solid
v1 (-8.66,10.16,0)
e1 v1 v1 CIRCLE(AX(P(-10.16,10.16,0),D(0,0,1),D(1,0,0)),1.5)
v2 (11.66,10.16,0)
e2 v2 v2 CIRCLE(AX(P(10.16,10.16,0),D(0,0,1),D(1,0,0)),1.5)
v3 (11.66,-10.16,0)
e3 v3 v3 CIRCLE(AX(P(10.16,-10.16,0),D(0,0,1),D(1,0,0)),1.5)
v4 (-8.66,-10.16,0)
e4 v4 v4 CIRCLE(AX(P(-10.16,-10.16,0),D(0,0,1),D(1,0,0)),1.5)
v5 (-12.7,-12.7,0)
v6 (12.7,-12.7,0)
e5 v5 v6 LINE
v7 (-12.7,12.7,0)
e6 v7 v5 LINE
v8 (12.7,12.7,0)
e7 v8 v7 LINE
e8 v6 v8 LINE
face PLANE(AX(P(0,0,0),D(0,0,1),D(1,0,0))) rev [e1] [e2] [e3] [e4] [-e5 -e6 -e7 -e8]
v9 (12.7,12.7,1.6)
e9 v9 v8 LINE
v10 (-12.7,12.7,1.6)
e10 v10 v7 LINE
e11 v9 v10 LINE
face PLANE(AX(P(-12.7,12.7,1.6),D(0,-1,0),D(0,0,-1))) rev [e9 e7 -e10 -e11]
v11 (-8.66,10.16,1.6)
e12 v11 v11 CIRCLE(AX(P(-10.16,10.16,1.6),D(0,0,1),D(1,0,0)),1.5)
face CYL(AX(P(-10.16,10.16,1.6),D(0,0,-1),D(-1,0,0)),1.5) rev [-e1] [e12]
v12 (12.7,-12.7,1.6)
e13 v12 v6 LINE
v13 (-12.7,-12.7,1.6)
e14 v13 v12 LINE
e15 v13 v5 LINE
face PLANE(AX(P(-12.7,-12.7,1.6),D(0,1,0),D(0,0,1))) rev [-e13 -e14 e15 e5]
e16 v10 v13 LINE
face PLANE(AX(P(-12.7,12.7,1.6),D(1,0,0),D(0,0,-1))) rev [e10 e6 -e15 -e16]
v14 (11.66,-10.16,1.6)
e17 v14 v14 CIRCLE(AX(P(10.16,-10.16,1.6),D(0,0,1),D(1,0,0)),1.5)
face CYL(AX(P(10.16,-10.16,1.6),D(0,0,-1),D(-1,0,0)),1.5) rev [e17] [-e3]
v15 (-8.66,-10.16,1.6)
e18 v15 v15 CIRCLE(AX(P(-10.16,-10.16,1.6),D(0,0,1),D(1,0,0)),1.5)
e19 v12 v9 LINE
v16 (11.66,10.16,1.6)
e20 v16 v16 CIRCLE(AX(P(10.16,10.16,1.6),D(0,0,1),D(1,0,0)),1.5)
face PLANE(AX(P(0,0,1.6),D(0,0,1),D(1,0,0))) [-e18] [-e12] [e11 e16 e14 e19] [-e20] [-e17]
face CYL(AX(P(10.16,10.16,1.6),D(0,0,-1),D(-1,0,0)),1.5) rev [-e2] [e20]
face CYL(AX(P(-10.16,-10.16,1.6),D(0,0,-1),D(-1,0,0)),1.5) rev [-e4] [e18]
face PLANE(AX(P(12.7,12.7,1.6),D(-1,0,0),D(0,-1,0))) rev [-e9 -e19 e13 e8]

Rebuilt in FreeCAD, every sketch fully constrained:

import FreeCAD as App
import Part
import Sketcher

V = App.Vector
Q = App.Units.Quantity

doc = App.newDocument("Part")
params = doc.addObject("Spreadsheet::Sheet", "Params")
for row, (alias, value) in enumerate([
    ("sketch1_diameter", "3 mm"),
    ("sketch1_width", "25.4 mm"),
    ("pad1_length", "1.6 mm"),
], start=1):
    params.set(f"A{row}", alias)
    params.set(f"B{row}", "=" + value)
    params.setAlias(f"B{row}", alias)

body = doc.addObject("PartDesign::Body", "Body")

sketch1 = doc.addObject("Sketcher::SketchObject", "Sketch")
body.addObject(sketch1)
sketch1.AttachmentSupport = (doc.XY_Plane, [""])
sketch1.MapMode = "FlatFace"
sketch1.addGeometry([
    Part.LineSegment(V(-12.7, 12.7, 0), V(-12.7, -12.7, 0)),
    Part.LineSegment(V(-12.7, -12.7, 0), V(12.7, -12.7, 0)),
    Part.LineSegment(V(12.7, -12.7, 0), V(12.7, 12.7, 0)),
    Part.LineSegment(V(12.7, 12.7, 0), V(-12.7, 12.7, 0)),
    Part.Circle(V(-10.2, -10.2, 0), V(0, 0, 1), 1.5),
    Part.Circle(V(10.2, -10.2, 0), V(0, 0, 1), 1.5),
    Part.Circle(V(-10.2, 10.2, 0), V(0, 0, 1), 1.5),
    Part.Circle(V(10.2, 10.2, 0), V(0, 0, 1), 1.5),
], False)
sketch1.addConstraint([
    Sketcher.Constraint("Coincident", 0, 2, 1, 1),
    Sketcher.Constraint("Coincident", 1, 2, 2, 1),
    Sketcher.Constraint("Coincident", 2, 2, 3, 1),
    Sketcher.Constraint("Coincident", 3, 2, 0, 1),
    Sketcher.Constraint("Vertical", 0),
    Sketcher.Constraint("Horizontal", 1),
    Sketcher.Constraint("Vertical", 2),
    Sketcher.Constraint("Horizontal", 3),
    Sketcher.Constraint("Equal", 4, 5),
    Sketcher.Constraint("Equal", 5, 6),
    Sketcher.Constraint("Equal", 6, 7),
    Sketcher.Constraint("Symmetric", 5, 3, 6, 3, -1, 1),
    Sketcher.Constraint("Symmetric", 4, 3, 7, 3, -1, 1),
    Sketcher.Constraint("Symmetric", 0, 2, 2, 2, -1, 1),
    Sketcher.Constraint("Symmetric", 4, 3, 5, 3, -2),
    Sketcher.Constraint("Equal", 3, 0),
    Sketcher.Constraint("Diameter", 4, Q("3 mm")),
    Sketcher.Constraint("DistanceX", 1, 1, 1, 2, Q("25.4 mm")),
    Sketcher.Constraint("DistanceX", 4, 3, -1, 1, Q("10.16 mm")),
    Sketcher.Constraint("DistanceY", 4, 3, -1, 1, Q("10.16 mm")),
])
sketch1.setExpression("Constraints[16]", "Params.sketch1_diameter")
sketch1.setExpression("Constraints[17]", "Params.sketch1_width")
pad1 = doc.addObject("PartDesign::Pad", "Pad")
body.addObject(pad1)
pad1.Profile = sketch1
pad1.setExpression("Length", "Params.pad1_length")

doc.recompute()
